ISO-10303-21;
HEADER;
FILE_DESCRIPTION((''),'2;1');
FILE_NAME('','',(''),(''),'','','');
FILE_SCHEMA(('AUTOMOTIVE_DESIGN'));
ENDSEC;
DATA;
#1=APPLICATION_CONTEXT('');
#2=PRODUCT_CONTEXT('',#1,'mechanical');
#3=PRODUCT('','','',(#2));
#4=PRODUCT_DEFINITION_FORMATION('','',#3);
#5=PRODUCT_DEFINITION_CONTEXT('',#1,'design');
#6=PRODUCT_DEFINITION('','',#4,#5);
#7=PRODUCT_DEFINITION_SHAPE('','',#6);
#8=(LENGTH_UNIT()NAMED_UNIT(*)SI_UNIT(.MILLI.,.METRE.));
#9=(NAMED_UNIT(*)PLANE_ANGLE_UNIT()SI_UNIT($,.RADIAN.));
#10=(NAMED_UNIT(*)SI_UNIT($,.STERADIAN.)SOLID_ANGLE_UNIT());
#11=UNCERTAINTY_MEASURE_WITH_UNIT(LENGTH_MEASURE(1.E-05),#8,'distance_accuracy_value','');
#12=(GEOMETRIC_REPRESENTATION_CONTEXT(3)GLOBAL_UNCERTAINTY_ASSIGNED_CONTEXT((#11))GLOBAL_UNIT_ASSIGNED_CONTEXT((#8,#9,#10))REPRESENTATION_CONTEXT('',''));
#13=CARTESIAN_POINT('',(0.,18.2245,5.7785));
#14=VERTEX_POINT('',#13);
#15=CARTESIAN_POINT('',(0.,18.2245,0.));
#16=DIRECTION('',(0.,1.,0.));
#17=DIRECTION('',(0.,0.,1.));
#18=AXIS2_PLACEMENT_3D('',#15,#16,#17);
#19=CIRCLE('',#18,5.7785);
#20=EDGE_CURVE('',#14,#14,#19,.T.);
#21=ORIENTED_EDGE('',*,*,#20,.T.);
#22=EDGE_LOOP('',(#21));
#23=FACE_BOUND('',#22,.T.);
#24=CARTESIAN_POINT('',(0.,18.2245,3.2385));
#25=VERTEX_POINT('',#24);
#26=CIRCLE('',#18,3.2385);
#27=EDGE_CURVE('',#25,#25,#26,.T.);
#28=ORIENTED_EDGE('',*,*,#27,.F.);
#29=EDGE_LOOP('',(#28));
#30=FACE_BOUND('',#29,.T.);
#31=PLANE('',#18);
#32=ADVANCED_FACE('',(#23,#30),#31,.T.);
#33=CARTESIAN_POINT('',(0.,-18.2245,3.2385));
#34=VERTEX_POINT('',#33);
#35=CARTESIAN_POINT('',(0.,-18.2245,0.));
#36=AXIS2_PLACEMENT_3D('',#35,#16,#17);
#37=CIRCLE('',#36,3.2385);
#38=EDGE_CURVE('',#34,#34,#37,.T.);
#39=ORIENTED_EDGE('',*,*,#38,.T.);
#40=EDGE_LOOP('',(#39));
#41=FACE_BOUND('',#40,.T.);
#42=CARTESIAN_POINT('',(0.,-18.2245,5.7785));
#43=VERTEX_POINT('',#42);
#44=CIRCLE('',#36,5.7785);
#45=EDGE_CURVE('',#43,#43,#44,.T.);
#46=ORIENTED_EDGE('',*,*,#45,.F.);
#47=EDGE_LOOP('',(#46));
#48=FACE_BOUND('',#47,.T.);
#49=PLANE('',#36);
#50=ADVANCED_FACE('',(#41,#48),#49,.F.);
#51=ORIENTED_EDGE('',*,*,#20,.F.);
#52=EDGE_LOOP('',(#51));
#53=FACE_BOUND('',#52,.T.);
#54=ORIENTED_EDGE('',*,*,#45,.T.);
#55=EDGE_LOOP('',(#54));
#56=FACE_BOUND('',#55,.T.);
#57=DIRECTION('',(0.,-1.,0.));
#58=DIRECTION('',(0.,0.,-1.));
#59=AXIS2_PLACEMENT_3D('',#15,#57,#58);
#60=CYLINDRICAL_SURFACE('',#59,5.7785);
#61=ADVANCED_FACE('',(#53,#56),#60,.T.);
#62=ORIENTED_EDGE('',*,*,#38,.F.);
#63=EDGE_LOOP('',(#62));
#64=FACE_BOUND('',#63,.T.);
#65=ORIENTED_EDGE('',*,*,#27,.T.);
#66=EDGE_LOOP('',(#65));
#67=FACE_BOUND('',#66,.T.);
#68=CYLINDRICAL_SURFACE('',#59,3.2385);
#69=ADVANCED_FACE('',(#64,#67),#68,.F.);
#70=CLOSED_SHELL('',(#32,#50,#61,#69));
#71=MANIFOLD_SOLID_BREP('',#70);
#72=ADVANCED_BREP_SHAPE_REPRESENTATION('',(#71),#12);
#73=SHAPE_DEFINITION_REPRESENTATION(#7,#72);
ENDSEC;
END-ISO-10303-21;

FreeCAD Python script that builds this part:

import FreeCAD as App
import Part
import Sketcher

V = App.Vector
Q = App.Units.Quantity

doc = App.newDocument("Part")
params = doc.addObject("Spreadsheet::Sheet", "Params")
for row, (alias, value) in enumerate([
    ("sketch1_diameter", "0.455 in"),
    ("sketch1_diameter2", "0.255 in"),
    ("pad1_length", "1.435 in"),
], start=1):
    params.set(f"A{row}", alias)
    params.set(f"B{row}", "=" + value)
    params.setAlias(f"B{row}", alias)

body = doc.addObject("PartDesign::Body", "Body")

# Sketch on XZ plane
sketch1 = doc.addObject("Sketcher::SketchObject", "Sketch")
body.addObject(sketch1)
sketch1.AttachmentSupport = (doc.XZ_Plane, [""])
sketch1.MapMode = "FlatFace"
sketch1.addGeometry(Part.Circle(V(0, 0, 0), V(0, 0, 1), 5.8), False)
sketch1.addGeometry(Part.Circle(V(0, 0, 0), V(0, 0, 1), 3.2), False)
sketch1.addConstraint(Sketcher.Constraint("Coincident", 0, 3, -1, 1))
sketch1.addConstraint(Sketcher.Constraint("Coincident", 1, 3, -1, 1))
sketch1.addConstraint(Sketcher.Constraint("Diameter", 0, Q("0.455 in")))
sketch1.addConstraint(Sketcher.Constraint("Diameter", 1, Q("0.255 in")))
sketch1.setExpression("Constraints[2]", "Params.sketch1_diameter")
sketch1.setExpression("Constraints[3]", "Params.sketch1_diameter2")
pad1 = doc.addObject("PartDesign::Pad", "Pad")
body.addObject(pad1)
pad1.Profile = sketch1
pad1.setExpression("Length", "Params.pad1_length")
pad1.Midplane = True

doc.recompute()
